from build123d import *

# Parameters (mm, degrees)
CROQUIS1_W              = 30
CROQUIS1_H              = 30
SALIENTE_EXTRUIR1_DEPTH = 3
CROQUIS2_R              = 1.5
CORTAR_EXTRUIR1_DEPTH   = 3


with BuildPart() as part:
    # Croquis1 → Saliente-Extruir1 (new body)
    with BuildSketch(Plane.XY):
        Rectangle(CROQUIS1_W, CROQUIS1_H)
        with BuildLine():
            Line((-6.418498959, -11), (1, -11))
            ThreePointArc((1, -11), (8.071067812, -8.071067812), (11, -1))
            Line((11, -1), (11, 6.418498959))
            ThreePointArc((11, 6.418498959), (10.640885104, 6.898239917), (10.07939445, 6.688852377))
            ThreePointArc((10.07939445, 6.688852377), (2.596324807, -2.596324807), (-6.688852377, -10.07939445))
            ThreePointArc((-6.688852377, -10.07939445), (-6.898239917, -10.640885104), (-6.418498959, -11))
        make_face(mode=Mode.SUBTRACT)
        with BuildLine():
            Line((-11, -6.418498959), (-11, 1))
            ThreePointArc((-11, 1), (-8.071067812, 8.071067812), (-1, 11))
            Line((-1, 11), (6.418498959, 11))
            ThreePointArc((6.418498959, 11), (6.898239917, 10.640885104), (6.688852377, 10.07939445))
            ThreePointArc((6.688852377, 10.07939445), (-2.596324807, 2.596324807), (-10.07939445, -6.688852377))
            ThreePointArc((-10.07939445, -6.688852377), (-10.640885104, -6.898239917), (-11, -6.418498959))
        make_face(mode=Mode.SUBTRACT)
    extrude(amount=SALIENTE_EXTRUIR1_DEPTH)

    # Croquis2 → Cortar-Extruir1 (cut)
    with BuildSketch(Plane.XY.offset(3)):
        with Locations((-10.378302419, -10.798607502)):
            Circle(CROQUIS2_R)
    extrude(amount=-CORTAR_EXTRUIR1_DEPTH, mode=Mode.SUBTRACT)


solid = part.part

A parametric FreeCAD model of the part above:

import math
import FreeCAD as App
import Part
import Sketcher
Q = App.Units.Quantity


def add_polygon(sketch, points):
    """Adds a closed chain of lines whose ends are joined by coincident constraints."""
    first, n = sketch.GeometryCount, len(points)
    for a, b in zip(points, points[1:] + points[:1]):
        sketch.addGeometry(Part.LineSegment(App.Vector(*a, 0), App.Vector(*b, 0)), False)
    for i in range(n):
        sketch.addConstraint(Sketcher.Constraint("Coincident", first + i, 2, first + (i + 1) % n, 1))

doc = App.newDocument("Part")
params = doc.addObject("Spreadsheet::Sheet", "Params")
for row, (alias, value) in enumerate([
    ("sketch1_radius", "10 mm"),
    ("sketch1_radius2", "0.5 mm"),
    ("sketch1_width", "30 mm"),
    ("pad1_length", "3 mm"),
    ("sketch2_diameter", "3 mm"),
    ("pocket1_length", "3 mm"),
], start=1):
    params.set(f"A{row}", alias)
    params.set(f"B{row}", "=" + value)
    params.setAlias(f"B{row}", alias)

body = doc.addObject("PartDesign::Body", "Body")

# Sketch on XY plane
sketch1 = body.newObject("Sketcher::SketchObject", "Sketch")
sketch1.AttachmentSupport = (doc.getObject("XY_Plane"), [""])
sketch1.MapMode = "FlatFace"
add_polygon(sketch1, [(-15, 15), (-15, -15), (15, -15), (15, 15)])  # lines 0-3
sketch1.addGeometry(Part.LineSegment(App.Vector(1, -11, 0), App.Vector(-6.418499, -11, 0)), False)  # 4
sketch1.addGeometry(Part.ArcOfCircle(Part.Circle(App.Vector(-6.418499, -10.5, 0), App.Vector(0, 0, 1), 0.5), math.radians(122.731769), math.radians(270)), False)  # 5
sketch1.addGeometry(Part.ArcOfCircle(Part.Circle(App.Vector(-36.86049, 36.86049, 0), App.Vector(0, 0, 1), 55.800362), math.radians(-57.268231), math.radians(-32.731769)), False)  # 6
sketch1.addGeometry(Part.ArcOfCircle(Part.Circle(App.Vector(10.5, 6.418499, 0), App.Vector(0, 0, 1), 0.5), math.radians(0), math.radians(147.268231)), False)  # 7
sketch1.addGeometry(Part.LineSegment(App.Vector(11, 6.418499, 0), App.Vector(11, -1, 0)), False)  # 8
sketch1.addGeometry(Part.ArcOfCircle(Part.Circle(App.Vector(1, -1, 0), App.Vector(0, 0, 1), 10), math.radians(-90), math.radians(0)), False)  # 9
sketch1.addGeometry(Part.ArcOfCircle(Part.Circle(App.Vector(-10.5, -6.418499, 0), App.Vector(0, 0, 1), 0.5), math.radians(-180), math.radians(-32.731769)), False)  # 10
sketch1.addGeometry(Part.LineSegment(App.Vector(-11, -6.418499, 0), App.Vector(-11, 1, 0)), False)  # 11
sketch1.addGeometry(Part.ArcOfCircle(Part.Circle(App.Vector(-1, 1, 0), App.Vector(0, 0, 1), 10), math.radians(90), math.radians(180)), False)  # 12
sketch1.addGeometry(Part.LineSegment(App.Vector(-1, 11, 0), App.Vector(6.418499, 11, 0)), False)  # 13
sketch1.addGeometry(Part.ArcOfCircle(Part.Circle(App.Vector(6.418499, 10.5, 0), App.Vector(0, 0, 1), 0.5), math.radians(-57.268231), math.radians(90)), False)  # 14
sketch1.addGeometry(Part.ArcOfCircle(Part.Circle(App.Vector(36.86049, -36.86049, 0), App.Vector(0, 0, 1), 55.800362), math.radians(122.731769), math.radians(147.268231)), False)  # 15
sketch1.addConstraint(Sketcher.Constraint("Tangent", 4, 2, 5, 2))
sketch1.addConstraint(Sketcher.Constraint("Tangent", 5, 1, 6, 1))
sketch1.addConstraint(Sketcher.Constraint("Tangent", 6, 2, 7, 2))
sketch1.addConstraint(Sketcher.Constraint("Tangent", 7, 1, 8, 1))
sketch1.addConstraint(Sketcher.Constraint("Tangent", 8, 2, 9, 2))
sketch1.addConstraint(Sketcher.Constraint("Tangent", 9, 1, 4, 1))
sketch1.addConstraint(Sketcher.Constraint("Tangent", 10, 1, 11, 1))
sketch1.addConstraint(Sketcher.Constraint("Tangent", 11, 2, 12, 2))
sketch1.addConstraint(Sketcher.Constraint("Tangent", 12, 1, 13, 1))
sketch1.addConstraint(Sketcher.Constraint("Tangent", 13, 2, 14, 2))
sketch1.addConstraint(Sketcher.Constraint("Tangent", 14, 1, 15, 1))
sketch1.addConstraint(Sketcher.Constraint("Tangent", 15, 2, 10, 2))
sketch1.addConstraint(Sketcher.Constraint("Vertical", 0))
sketch1.addConstraint(Sketcher.Constraint("Horizontal", 1))
sketch1.addConstraint(Sketcher.Constraint("Vertical", 2))
sketch1.addConstraint(Sketcher.Constraint("Horizontal", 3))
sketch1.addConstraint(Sketcher.Constraint("Horizontal", 4))
sketch1.addConstraint(Sketcher.Constraint("Vertical", 8))
sketch1.addConstraint(Sketcher.Constraint("Vertical", 11))
sketch1.addConstraint(Sketcher.Constraint("Horizontal", 13))
sketch1.addConstraint(Sketcher.Constraint("Equal", 5, 7))
sketch1.addConstraint(Sketcher.Constraint("Equal", 7, 10))
sketch1.addConstraint(Sketcher.Constraint("Equal", 9, 12))
sketch1.addConstraint(Sketcher.Constraint("Equal", 10, 14))
sketch1.addConstraint(Sketcher.Constraint("Equal", 6, 15))
sketch1.addConstraint(Sketcher.Constraint("Symmetric", 7, 3, 10, 3, -1, 1))
sketch1.addConstraint(Sketcher.Constraint("Symmetric", 5, 3, 14, 3, -1, 1))
sketch1.addConstraint(Sketcher.Constraint("Symmetric", 0, 2, 2, 2, -1, 1))
sketch1.addConstraint(Sketcher.Constraint("Equal", 3, 0))
sketch1.addConstraint(Sketcher.Constraint("Equal", 13, 8))
sketch1.addConstraint(Sketcher.Constraint("Radius", 9, Q("10 mm")))
sketch1.addConstraint(Sketcher.Constraint("Radius", 5, Q("0.5 mm")))
sketch1.addConstraint(Sketcher.Constraint("DistanceX", 1, 1, 1, 2, Q("30 mm")))
sketch1.addConstraint(Sketcher.Constraint("DistanceX", -1, 1, 9, 3, Q("1 mm")))
sketch1.addConstraint(Sketcher.Constraint("DistanceY", 9, 3, -1, 1, Q("1 mm")))
sketch1.addConstraint(Sketcher.Constraint("DistanceX", 4, 2, 4, 1, Q("7.418499 mm")))
sketch1.addConstraint(Sketcher.Constraint("Radius", 6, Q("55.800362 mm")))
sketch1.setExpression("Constraints[34]", "Params.sketch1_radius")
sketch1.setExpression("Constraints[35]", "Params.sketch1_radius2")
sketch1.setExpression("Constraints[36]", "Params.sketch1_width")
pad1 = body.newObject("PartDesign::Pad", "Pad")
pad1.Profile = sketch1
pad1.setExpression("Length", "Params.pad1_length")

# Sketch on XY plane
sketch2 = body.newObject("Sketcher::SketchObject", "Sketch001")
sketch2.AttachmentSupport = (doc.getObject("XY_Plane"), [""])
sketch2.MapMode = "FlatFace"
sketch2.AttachmentOffset = App.Placement(App.Vector(0, 0, 3), App.Rotation())
sketch2.addGeometry(Part.Circle(App.Vector(-10.378302, -10.798608, 0), App.Vector(0, 0, 1), 1.5), False)
sketch2.addConstraint(Sketcher.Constraint("Diameter", 0, Q("3 mm")))
sketch2.addConstraint(Sketcher.Constraint("DistanceX", 0, 3, -1, 1, Q("10.378302 mm")))
sketch2.addConstraint(Sketcher.Constraint("DistanceY", 0, 3, -1, 1, Q("10.798608 mm")))
sketch2.setExpression("Constraints[0]", "Params.sketch2_diameter")
pocket1 = body.newObject("PartDesign::Pocket", "Pocket")
pocket1.Profile = sketch2
pocket1.setExpression("Length", "Params.pocket1_length")

doc.recompute()
